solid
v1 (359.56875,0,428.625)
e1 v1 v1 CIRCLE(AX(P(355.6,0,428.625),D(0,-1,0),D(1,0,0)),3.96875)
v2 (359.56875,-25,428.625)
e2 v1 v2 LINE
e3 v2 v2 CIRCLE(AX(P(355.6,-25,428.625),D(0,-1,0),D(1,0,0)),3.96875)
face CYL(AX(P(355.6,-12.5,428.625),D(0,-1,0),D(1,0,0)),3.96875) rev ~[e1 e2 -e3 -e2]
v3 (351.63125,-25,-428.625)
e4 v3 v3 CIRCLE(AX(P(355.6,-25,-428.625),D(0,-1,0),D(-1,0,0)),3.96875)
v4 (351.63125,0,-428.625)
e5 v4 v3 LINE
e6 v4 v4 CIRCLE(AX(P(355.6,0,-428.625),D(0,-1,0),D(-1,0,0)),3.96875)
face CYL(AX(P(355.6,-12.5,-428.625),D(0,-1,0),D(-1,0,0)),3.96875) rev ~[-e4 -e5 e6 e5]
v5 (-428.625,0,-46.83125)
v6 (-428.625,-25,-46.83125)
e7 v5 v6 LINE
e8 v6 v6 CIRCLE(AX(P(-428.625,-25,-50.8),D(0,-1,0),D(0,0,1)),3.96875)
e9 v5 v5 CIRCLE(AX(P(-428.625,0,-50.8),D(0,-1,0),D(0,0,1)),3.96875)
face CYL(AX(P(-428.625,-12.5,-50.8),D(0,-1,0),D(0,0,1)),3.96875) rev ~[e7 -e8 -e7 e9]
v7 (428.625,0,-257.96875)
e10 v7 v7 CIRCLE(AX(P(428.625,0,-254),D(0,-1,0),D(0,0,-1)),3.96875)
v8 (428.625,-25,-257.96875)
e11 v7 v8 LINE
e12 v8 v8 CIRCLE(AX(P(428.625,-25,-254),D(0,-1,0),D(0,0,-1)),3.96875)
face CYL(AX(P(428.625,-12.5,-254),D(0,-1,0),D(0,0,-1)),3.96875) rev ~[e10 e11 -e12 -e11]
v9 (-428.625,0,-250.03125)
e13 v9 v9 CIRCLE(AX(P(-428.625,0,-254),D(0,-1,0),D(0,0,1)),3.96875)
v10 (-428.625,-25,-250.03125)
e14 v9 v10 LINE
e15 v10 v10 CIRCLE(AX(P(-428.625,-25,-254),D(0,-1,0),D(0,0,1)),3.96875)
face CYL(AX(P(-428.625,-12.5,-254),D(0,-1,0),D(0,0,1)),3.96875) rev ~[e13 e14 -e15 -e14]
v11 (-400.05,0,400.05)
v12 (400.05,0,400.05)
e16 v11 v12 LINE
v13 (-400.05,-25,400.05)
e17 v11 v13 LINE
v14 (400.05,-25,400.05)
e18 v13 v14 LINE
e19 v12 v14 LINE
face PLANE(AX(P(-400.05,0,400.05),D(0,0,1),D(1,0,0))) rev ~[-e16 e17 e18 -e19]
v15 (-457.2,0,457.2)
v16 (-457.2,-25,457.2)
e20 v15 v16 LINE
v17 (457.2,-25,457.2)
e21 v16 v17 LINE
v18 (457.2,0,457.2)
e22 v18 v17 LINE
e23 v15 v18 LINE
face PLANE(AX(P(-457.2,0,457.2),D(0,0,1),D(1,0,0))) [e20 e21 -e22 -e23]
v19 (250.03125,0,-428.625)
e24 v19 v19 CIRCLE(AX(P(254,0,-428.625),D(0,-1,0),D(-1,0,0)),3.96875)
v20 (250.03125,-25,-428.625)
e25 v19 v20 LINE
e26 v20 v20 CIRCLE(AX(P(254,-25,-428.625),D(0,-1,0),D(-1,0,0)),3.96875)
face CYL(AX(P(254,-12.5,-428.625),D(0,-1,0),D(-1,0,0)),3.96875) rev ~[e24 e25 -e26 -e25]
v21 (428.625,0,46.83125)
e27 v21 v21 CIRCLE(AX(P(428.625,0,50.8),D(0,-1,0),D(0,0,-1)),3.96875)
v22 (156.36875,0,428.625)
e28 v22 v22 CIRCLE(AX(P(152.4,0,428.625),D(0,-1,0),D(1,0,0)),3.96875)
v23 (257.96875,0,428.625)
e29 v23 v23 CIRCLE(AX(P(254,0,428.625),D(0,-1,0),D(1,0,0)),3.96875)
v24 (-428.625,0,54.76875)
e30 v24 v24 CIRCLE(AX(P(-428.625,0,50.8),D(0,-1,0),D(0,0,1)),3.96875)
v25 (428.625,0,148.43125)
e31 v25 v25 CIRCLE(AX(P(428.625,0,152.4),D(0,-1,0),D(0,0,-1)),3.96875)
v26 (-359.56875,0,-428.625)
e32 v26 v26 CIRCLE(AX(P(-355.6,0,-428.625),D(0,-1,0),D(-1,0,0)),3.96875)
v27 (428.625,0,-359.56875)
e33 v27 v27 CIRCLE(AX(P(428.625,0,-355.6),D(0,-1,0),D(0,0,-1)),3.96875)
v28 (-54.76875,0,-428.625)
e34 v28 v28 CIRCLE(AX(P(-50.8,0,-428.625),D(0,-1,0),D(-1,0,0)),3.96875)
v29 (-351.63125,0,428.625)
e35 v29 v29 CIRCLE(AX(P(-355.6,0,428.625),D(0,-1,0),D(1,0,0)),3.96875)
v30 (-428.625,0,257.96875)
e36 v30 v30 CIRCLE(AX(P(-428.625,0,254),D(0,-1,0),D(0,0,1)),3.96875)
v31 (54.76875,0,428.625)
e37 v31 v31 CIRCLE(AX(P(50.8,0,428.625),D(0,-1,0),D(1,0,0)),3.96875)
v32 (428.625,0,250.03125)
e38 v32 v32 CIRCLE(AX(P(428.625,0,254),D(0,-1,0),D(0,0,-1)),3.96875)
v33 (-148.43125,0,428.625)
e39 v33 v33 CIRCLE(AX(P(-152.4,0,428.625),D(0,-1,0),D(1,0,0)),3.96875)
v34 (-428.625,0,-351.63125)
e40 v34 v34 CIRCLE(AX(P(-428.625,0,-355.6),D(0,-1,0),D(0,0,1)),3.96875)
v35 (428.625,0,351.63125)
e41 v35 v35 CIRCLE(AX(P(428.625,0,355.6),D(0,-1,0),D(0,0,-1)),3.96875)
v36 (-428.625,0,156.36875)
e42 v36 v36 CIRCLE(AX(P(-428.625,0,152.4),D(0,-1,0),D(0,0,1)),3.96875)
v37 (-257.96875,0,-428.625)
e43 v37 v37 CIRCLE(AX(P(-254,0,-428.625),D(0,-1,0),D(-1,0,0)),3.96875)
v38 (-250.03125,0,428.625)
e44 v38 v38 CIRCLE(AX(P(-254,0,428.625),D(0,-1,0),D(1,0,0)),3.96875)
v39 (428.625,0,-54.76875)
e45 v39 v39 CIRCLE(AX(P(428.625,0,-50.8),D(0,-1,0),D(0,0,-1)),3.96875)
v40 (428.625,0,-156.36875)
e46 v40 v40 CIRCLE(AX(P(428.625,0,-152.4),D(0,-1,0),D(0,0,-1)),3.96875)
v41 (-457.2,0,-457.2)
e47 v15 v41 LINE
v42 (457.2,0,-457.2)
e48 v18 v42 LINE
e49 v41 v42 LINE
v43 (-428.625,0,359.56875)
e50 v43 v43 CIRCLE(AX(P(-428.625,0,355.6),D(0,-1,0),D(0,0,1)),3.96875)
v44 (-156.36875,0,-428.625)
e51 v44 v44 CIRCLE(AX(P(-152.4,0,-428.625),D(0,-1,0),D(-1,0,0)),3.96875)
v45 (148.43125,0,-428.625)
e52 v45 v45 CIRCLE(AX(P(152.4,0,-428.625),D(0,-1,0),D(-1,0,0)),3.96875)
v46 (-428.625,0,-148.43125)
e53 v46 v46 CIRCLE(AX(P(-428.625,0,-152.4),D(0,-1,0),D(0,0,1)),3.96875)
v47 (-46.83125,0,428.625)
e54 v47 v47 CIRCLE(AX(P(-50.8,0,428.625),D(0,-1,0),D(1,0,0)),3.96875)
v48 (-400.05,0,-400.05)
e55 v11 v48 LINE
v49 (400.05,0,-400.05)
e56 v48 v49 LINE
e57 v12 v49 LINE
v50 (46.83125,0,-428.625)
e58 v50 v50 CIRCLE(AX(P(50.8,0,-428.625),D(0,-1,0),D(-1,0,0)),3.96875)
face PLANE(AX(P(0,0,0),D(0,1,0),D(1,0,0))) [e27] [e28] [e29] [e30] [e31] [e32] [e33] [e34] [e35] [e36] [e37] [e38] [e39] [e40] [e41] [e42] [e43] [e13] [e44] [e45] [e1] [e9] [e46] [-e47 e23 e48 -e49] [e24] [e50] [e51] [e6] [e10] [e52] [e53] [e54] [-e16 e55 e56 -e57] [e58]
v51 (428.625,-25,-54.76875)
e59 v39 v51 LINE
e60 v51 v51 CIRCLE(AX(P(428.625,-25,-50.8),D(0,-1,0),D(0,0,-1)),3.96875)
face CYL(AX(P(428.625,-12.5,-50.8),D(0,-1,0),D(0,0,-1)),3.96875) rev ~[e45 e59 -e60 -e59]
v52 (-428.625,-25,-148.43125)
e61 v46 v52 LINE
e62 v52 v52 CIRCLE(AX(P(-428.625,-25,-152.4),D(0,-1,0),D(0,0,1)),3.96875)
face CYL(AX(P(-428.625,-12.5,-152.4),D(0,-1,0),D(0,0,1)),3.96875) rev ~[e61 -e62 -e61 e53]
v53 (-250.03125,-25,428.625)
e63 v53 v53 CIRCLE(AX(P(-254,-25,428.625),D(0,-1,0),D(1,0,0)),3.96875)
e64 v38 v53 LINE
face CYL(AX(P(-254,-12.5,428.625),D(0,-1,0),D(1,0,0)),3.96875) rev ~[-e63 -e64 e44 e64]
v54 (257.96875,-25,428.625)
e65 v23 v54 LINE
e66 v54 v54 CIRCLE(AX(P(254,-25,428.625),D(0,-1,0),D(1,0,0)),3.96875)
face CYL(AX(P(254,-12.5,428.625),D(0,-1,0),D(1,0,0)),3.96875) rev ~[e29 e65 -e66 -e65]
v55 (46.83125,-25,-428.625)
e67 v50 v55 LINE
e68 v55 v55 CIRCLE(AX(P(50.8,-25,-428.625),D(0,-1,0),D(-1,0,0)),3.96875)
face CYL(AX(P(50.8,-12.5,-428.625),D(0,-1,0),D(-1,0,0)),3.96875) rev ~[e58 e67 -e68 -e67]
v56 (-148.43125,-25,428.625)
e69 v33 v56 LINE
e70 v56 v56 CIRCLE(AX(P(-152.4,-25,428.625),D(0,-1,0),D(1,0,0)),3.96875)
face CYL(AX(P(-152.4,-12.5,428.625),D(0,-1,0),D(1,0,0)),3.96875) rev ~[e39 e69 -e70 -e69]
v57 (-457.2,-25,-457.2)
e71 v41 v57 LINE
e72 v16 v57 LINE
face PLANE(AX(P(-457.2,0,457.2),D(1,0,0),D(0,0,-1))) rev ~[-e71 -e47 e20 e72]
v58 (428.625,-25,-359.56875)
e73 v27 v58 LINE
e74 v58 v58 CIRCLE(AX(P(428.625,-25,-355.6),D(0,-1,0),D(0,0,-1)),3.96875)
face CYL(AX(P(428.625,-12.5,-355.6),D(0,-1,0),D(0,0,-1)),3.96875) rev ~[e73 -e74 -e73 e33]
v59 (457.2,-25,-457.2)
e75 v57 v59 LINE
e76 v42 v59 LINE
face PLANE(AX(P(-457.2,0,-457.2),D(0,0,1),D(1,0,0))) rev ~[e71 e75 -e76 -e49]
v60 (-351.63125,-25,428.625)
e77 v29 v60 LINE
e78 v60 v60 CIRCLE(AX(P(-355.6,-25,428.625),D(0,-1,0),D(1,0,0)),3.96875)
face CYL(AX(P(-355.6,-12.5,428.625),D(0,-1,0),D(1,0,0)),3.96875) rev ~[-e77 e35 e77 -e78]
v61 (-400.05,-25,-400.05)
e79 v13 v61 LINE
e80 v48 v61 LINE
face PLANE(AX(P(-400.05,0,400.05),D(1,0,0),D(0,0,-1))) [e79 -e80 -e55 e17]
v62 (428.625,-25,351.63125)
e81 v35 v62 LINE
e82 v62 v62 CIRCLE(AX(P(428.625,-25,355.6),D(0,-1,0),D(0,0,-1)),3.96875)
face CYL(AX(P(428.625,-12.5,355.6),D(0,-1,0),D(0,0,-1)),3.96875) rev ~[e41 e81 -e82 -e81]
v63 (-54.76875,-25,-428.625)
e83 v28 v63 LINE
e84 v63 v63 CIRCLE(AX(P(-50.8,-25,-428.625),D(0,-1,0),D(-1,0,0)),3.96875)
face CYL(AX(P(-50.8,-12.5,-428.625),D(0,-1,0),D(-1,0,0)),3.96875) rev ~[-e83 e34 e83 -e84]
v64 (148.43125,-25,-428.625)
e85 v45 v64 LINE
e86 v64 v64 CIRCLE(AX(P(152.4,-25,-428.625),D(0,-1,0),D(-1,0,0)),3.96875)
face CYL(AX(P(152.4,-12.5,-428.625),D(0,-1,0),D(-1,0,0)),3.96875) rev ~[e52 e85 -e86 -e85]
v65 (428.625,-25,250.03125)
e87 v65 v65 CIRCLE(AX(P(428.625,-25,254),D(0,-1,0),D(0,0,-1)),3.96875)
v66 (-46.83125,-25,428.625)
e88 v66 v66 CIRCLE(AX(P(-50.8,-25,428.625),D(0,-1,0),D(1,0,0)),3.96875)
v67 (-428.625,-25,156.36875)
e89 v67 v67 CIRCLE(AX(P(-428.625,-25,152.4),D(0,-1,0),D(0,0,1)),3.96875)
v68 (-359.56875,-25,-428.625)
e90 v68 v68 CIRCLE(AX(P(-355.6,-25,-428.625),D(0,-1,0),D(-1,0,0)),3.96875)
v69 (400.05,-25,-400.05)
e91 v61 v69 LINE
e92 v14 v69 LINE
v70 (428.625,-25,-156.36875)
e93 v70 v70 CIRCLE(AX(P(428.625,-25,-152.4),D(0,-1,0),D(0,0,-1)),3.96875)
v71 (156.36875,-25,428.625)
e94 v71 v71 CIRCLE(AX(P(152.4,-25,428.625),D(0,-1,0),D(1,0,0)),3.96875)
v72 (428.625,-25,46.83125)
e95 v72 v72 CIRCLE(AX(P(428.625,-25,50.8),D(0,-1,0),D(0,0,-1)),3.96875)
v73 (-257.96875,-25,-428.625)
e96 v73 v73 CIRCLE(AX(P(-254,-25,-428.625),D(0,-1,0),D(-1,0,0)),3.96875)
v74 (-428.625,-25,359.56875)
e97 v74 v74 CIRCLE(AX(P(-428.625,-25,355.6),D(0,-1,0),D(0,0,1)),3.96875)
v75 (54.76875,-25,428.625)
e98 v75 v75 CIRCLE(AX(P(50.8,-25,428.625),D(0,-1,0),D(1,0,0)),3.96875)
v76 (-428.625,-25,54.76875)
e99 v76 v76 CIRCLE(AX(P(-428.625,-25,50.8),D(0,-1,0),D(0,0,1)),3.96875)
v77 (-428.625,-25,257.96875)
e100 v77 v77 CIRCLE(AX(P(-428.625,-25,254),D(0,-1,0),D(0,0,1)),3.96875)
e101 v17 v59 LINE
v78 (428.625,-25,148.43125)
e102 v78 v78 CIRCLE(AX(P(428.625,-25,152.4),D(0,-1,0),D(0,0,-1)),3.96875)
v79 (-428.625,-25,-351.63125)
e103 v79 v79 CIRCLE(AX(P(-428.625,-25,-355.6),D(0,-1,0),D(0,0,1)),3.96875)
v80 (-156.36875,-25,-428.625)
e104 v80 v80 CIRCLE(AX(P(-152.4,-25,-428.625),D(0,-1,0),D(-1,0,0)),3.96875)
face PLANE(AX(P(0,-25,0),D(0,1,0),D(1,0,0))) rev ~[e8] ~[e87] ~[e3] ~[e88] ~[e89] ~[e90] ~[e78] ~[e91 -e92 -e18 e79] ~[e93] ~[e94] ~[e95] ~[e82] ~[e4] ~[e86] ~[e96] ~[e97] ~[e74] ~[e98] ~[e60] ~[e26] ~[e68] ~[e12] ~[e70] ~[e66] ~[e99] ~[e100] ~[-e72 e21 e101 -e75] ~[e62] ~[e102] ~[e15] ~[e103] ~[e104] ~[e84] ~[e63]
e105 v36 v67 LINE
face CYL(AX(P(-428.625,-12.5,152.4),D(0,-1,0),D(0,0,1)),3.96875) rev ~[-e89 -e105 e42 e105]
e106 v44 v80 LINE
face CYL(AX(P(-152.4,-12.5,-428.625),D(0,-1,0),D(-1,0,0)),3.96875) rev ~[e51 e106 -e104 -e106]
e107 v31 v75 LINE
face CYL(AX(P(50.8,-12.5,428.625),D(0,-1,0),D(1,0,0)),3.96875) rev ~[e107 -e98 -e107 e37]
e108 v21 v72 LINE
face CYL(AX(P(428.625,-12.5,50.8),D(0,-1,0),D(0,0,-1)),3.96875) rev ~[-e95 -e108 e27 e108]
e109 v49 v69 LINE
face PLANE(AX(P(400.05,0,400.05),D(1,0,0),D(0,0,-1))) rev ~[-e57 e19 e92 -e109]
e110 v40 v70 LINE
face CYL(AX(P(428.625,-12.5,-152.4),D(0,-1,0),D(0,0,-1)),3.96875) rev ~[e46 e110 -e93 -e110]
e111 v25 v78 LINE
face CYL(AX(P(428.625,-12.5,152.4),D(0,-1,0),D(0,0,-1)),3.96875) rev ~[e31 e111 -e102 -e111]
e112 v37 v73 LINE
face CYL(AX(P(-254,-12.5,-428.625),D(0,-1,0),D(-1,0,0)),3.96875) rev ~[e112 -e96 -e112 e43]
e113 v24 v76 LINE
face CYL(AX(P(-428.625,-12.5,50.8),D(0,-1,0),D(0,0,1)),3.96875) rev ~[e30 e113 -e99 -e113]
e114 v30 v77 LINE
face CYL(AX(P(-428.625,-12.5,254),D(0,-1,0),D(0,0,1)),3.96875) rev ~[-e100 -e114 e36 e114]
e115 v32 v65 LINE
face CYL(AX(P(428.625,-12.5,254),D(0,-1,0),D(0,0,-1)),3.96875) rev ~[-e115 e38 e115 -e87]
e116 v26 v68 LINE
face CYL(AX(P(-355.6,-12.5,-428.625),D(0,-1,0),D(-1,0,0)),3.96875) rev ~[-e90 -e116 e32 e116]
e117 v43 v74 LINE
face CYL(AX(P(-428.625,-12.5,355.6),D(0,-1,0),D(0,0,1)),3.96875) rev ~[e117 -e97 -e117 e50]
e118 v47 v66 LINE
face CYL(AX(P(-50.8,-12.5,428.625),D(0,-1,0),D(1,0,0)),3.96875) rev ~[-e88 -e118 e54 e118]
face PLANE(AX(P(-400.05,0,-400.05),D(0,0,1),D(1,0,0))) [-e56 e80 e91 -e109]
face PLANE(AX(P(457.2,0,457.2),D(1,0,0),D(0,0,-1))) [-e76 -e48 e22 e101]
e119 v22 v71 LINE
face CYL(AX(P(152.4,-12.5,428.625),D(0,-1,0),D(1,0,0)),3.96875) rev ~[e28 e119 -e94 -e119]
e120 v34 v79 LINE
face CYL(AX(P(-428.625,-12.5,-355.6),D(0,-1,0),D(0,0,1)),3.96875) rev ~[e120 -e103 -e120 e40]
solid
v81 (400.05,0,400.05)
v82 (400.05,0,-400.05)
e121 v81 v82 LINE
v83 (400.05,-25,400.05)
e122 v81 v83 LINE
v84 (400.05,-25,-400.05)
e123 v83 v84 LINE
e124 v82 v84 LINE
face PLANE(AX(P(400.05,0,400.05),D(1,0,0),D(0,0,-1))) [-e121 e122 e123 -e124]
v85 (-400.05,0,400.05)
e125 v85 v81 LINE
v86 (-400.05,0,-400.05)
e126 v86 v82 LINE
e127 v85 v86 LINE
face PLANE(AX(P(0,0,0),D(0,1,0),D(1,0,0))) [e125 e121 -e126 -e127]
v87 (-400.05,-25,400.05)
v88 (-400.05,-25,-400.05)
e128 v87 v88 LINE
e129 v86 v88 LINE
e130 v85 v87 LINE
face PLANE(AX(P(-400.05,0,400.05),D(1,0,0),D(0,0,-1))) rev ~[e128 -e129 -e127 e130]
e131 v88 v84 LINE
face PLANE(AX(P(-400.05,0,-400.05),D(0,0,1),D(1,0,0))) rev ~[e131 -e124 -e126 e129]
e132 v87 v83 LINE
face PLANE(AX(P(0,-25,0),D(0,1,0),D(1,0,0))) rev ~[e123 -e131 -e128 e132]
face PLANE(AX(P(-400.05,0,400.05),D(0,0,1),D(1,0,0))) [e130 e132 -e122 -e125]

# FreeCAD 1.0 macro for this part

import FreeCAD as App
import Part
import Sketcher
Q = App.Units.Quantity


def add_polygon(sketch, points):
    """Adds a closed chain of lines whose ends are joined by coincident constraints."""
    first, n = sketch.GeometryCount, len(points)
    for a, b in zip(points, points[1:] + points[:1]):
        sketch.addGeometry(Part.LineSegment(App.Vector(*a, 0), App.Vector(*b, 0)), False)
    for i in range(n):
        sketch.addConstraint(Sketcher.Constraint("Coincident", first + i, 2, first + (i + 1) % n, 1))

doc = App.newDocument("Part")
body = doc.addObject("PartDesign::Body", "Body")

# Sketch on XZ plane
sketch1 = body.newObject("Sketcher::SketchObject", "Sketch")
sketch1.AttachmentSupport = (doc.getObject("XZ_Plane"), [""])
sketch1.MapMode = "FlatFace"
add_polygon(sketch1, [(-400.05, -400.05), (-400.05, 400.05), (400.05, 400.05), (400.05, -400.05)])  # lines 0-3
sketch1.addConstraint([
    Sketcher.Constraint("Vertical", 0),
    Sketcher.Constraint("Horizontal", 1),
    Sketcher.Constraint("Vertical", 2),
    Sketcher.Constraint("Horizontal", 3),
    Sketcher.Constraint("Symmetric", 0, 2, 2, 2, -1, 1),
    Sketcher.Constraint("Equal", 3, 0),
    Sketcher.Constraint("DistanceX", 1, 1, 1, 2, Q("31.5 in")),
])
pad1 = body.newObject("PartDesign::Pad", "Pad")
pad1.Profile = sketch1
pad1.Length = 25
body2 = doc.addObject("PartDesign::Body", "Body001")

# Sketch on XZ plane
sketch2 = body2.newObject("Sketcher::SketchObject", "Sketch001")
sketch2.AttachmentSupport = (doc.getObject("XZ_Plane001"), [""])
sketch2.MapMode = "FlatFace"
add_polygon(sketch2, [(-457.2, -457.2), (-457.2, 457.2), (457.2, 457.2), (457.2, -457.2)])  # lines 0-3
add_polygon(sketch2, [(400.05, 400.05), (-400.05, 400.05), (-400.05, -400.05), (400.05, -400.05)])  # lines 4-7
sketch2.addConstraint([
    Sketcher.Constraint("Vertical", 0),
    Sketcher.Constraint("Horizontal", 1),
    Sketcher.Constraint("Vertical", 2),
    Sketcher.Constraint("Horizontal", 3),
    Sketcher.Constraint("Horizontal", 4),
    Sketcher.Constraint("Vertical", 5),
    Sketcher.Constraint("Horizontal", 6),
    Sketcher.Constraint("Vertical", 7),
    Sketcher.Constraint("Symmetric", 0, 2, 2, 2, -1, 1),
    Sketcher.Constraint("Symmetric", 4, 2, 6, 2, -1, 1),
    Sketcher.Constraint("Equal", 3, 0),
    Sketcher.Constraint("Equal", 6, 5),
    Sketcher.Constraint("DistanceX", 1, 1, 1, 2, Q("36 in")),
    Sketcher.Constraint("DistanceX", 4, 2, 4, 1, Q("31.5 in")),
])
pad2 = body2.newObject("PartDesign::Pad", "Pad001")
pad2.Profile = sketch2
pad2.Length = 25

# Sketch on YZ plane
sketch3 = body2.newObject("Sketcher::SketchObject", "Sketch002")
sketch3.AttachmentSupport = (doc.getObject("YZ_Plane001"), [""])
sketch3.MapMode = "FlatFace"
sketch3.AttachmentOffset = App.Placement(App.Vector(0, 0, -16.875 * 25.4), App.Rotation())
add_polygon(sketch3, [(-25, 50.8), (0, 50.8), (0, 54.76875), (-25, 54.76875)])  # lines 0-3
sketch3.addGeometry(Part.LineSegment(App.Vector(0, 50.8, 0), App.Vector(-25, 50.8, 0)), True)  # axis
sketch3.addConstraint([
    Sketcher.Constraint("Horizontal", 0),
    Sketcher.Constraint("Vertical", 1),
    Sketcher.Constraint("Horizontal", 2),
    Sketcher.Constraint("Vertical", 3),
    Sketcher.Constraint("Horizontal", 4),
    Sketcher.Constraint("Coincident", 4, 1, 0, 2),
    Sketcher.Constraint("PointOnObject", 0, 2, -2),
    Sketcher.Constraint("Vertical", 2, 2, 4, 2),
    Sketcher.Constraint("DistanceY", -1, 1, 0, 2, Q("2 in")),
    Sketcher.Constraint("DistanceY", 1, 1, 1, 2, Q("0.15625 in")),
    Sketcher.Constraint("DistanceX", 0, 1, 0, 2, Q("25 mm")),
])
groove = body2.newObject("PartDesign::Groove", "Groove")
groove.Profile = sketch3
groove.ReferenceAxis = (sketch3, ["Axis0"])
groove.Angle = 360
doc.recompute()

linearpattern = body2.newObject("PartDesign::LinearPattern", "LinearPattern")
linearpattern.Originals = [groove]
linearpattern.Direction = (doc.getObject("Z_Axis001"), [""])
linearpattern.Mode = "offset"
linearpattern.Offset = Q("4 in")
linearpattern.Occurrences = 4
body2.Tip = linearpattern
doc.recompute()

linearpattern2 = body2.newObject("PartDesign::LinearPattern", "LinearPattern001")
linearpattern2.Originals = [groove]
linearpattern2.Direction = (doc.getObject("Z_Axis001"), [""])
linearpattern2.Mode = "offset"
linearpattern2.Offset = Q("4 in")
linearpattern2.Occurrences = 5
linearpattern2.Reversed = True
body2.Tip = linearpattern2
doc.recompute()

polarpattern = body2.newObject("PartDesign::PolarPattern", "PolarPattern")
polarpattern.Originals = [groove]
polarpattern.Axis = (doc.getObject("Y_Axis001"), [""])
polarpattern.Angle = 360
polarpattern.Occurrences = 4
body2.Tip = polarpattern

# Sketch on XY plane
sketch4 = body2.newObject("Sketcher::SketchObject", "Sketch003")
sketch4.AttachmentSupport = (doc.getObject("XY_Plane001"), [""])
sketch4.MapMode = "FlatFace"
sketch4.AttachmentOffset = App.Placement(App.Vector(0, 0, 16.875 * 25.4), App.Rotation())
add_polygon(sketch4, [(152.4, -25), (152.4, 0), (156.36875, 0), (156.36875, -25)])  # lines 0-3
sketch4.addGeometry(Part.LineSegment(App.Vector(152.4, 0, 0), App.Vector(152.4, -25, 0)), True)  # axis
sketch4.addConstraint([
    Sketcher.Constraint("Vertical", 0),
    Sketcher.Constraint("Horizontal", 1),
    Sketcher.Constraint("Vertical", 2),
    Sketcher.Constraint("Horizontal", 3),
    Sketcher.Constraint("Vertical", 4),
    Sketcher.Constraint("Coincident", 4, 1, 0, 2),
    Sketcher.Constraint("PointOnObject", 0, 2, -1),
    Sketcher.Constraint("Horizontal", 2, 2, 4, 2),
    Sketcher.Constraint("DistanceX", -1, 1, 0, 2, Q("6 in")),
    Sketcher.Constraint("DistanceX", 1, 1, 1, 2, Q("0.15625 in")),
    Sketcher.Constraint("DistanceY", 0, 1, 0, 2, Q("25 mm")),
])
groove2 = body2.newObject("PartDesign::Groove", "Groove001")
groove2.Profile = sketch4
groove2.ReferenceAxis = (sketch4, ["Axis0"])
groove2.Angle = 360

# Sketch on YZ plane
sketch5 = body2.newObject("Sketcher::SketchObject", "Sketch004")
sketch5.AttachmentSupport = (doc.getObject("YZ_Plane001"), [""])
sketch5.MapMode = "FlatFace"
sketch5.AttachmentOffset = App.Placement(App.Vector(0, 0, 16.875 * 25.4), App.Rotation())
add_polygon(sketch5, [(-25, -152.4), (0, -152.4), (0, -156.36875), (-25, -156.36875)])  # lines 0-3
sketch5.addGeometry(Part.LineSegment(App.Vector(0, -152.4, 0), App.Vector(-25, -152.4, 0)), True)  # axis
sketch5.addConstraint([
    Sketcher.Constraint("Horizontal", 0),
    Sketcher.Constraint("Vertical", 1),
    Sketcher.Constraint("Horizontal", 2),
    Sketcher.Constraint("Vertical", 3),
    Sketcher.Constraint("Horizontal", 4),
    Sketcher.Constraint("Coincident", 4, 1, 0, 2),
    Sketcher.Constraint("PointOnObject", 0, 2, -2),
    Sketcher.Constraint("Vertical", 2, 2, 4, 2),
    Sketcher.Constraint("DistanceY", 0, 2, -1, 1, Q("6 in")),
    Sketcher.Constraint("DistanceY", 1, 2, 1, 1, Q("0.15625 in")),
    Sketcher.Constraint("DistanceX", 0, 1, 0, 2, Q("25 mm")),
])
groove3 = body2.newObject("PartDesign::Groove", "Groove002")
groove3.Profile = sketch5
groove3.ReferenceAxis = (sketch5, ["Axis0"])
groove3.Angle = 360

# Sketch on XY plane
sketch6 = body2.newObject("Sketcher::SketchObject", "Sketch005")
sketch6.AttachmentSupport = (doc.getObject("XY_Plane001"), [""])
sketch6.MapMode = "FlatFace"
sketch6.AttachmentOffset = App.Placement(App.Vector(0, 0, -16.875 * 25.4), App.Rotation())
add_polygon(sketch6, [(-152.4, -25), (-152.4, 0), (-156.36875, 0), (-156.36875, -25)])  # lines 0-3
sketch6.addGeometry(Part.LineSegment(App.Vector(-152.4, 0, 0), App.Vector(-152.4, -25, 0)), True)  # axis
sketch6.addConstraint([
    Sketcher.Constraint("Vertical", 0),
    Sketcher.Constraint("Horizontal", 1),
    Sketcher.Constraint("Vertical", 2),
    Sketcher.Constraint("Horizontal", 3),
    Sketcher.Constraint("Vertical", 4),
    Sketcher.Constraint("Coincident", 4, 1, 0, 2),
    Sketcher.Constraint("PointOnObject", 0, 2, -1),
    Sketcher.Constraint("Horizontal", 2, 2, 4, 2),
    Sketcher.Constraint("DistanceX", 0, 2, -1, 1, Q("6 in")),
    Sketcher.Constraint("DistanceX", 1, 2, 1, 1, Q("0.15625 in")),
    Sketcher.Constraint("DistanceY", 0, 1, 0, 2, Q("25 mm")),
])
groove4 = body2.newObject("PartDesign::Groove", "Groove003")
groove4.Profile = sketch6
groove4.ReferenceAxis = (sketch6, ["Axis0"])
groove4.Angle = 360

# Sketch on XY plane
sketch7 = body2.newObject("Sketcher::SketchObject", "Sketch006")
sketch7.AttachmentSupport = (doc.getObject("XY_Plane001"), [""])
sketch7.MapMode = "FlatFace"
sketch7.AttachmentOffset = App.Placement(App.Vector(0, 0, 16.875 * 25.4), App.Rotation())
add_polygon(sketch7, [(254, -25), (254, 0), (257.96875, 0), (257.96875, -25)])  # lines 0-3
sketch7.addGeometry(Part.LineSegment(App.Vector(254, 0, 0), App.Vector(254, -25, 0)), True)  # axis
sketch7.addConstraint([
    Sketcher.Constraint("Vertical", 0),
    Sketcher.Constraint("Horizontal", 1),
    Sketcher.Constraint("Vertical", 2),
    Sketcher.Constraint("Horizontal", 3),
    Sketcher.Constraint("Vertical", 4),
    Sketcher.Constraint("Coincident", 4, 1, 0, 2),
    Sketcher.Constraint("PointOnObject", 0, 2, -1),
    Sketcher.Constraint("Horizontal", 2, 2, 4, 2),
    Sketcher.Constraint("DistanceX", -1, 1, 0, 2, Q("10 in")),
    Sketcher.Constraint("DistanceX", 1, 1, 1, 2, Q("0.15625 in")),
    Sketcher.Constraint("DistanceY", 0, 1, 0, 2, Q("25 mm")),
])
groove5 = body2.newObject("PartDesign::Groove", "Groove004")
groove5.Profile = sketch7
groove5.ReferenceAxis = (sketch7, ["Axis0"])
groove5.Angle = 360

# Sketch on YZ plane
sketch8 = body2.newObject("Sketcher::SketchObject", "Sketch007")
sketch8.AttachmentSupport = (doc.getObject("YZ_Plane001"), [""])
sketch8.MapMode = "FlatFace"
sketch8.AttachmentOffset = App.Placement(App.Vector(0, 0, 16.875 * 25.4), App.Rotation())
add_polygon(sketch8, [(-25, -254), (0, -254), (0, -257.96875), (-25, -257.96875)])  # lines 0-3
sketch8.addGeometry(Part.LineSegment(App.Vector(0, -254, 0), App.Vector(-25, -254, 0)), True)  # axis
sketch8.addConstraint([
    Sketcher.Constraint("Horizontal", 0),
    Sketcher.Constraint("Vertical", 1),
    Sketcher.Constraint("Horizontal", 2),
    Sketcher.Constraint("Vertical", 3),
    Sketcher.Constraint("Horizontal", 4),
    Sketcher.Constraint("Coincident", 4, 1, 0, 2),
    Sketcher.Constraint("PointOnObject", 0, 2, -2),
    Sketcher.Constraint("Vertical", 2, 2, 4, 2),
    Sketcher.Constraint("DistanceY", 0, 2, -1, 1, Q("10 in")),
    Sketcher.Constraint("DistanceY", 1, 2, 1, 1, Q("0.15625 in")),
    Sketcher.Constraint("DistanceX", 0, 1, 0, 2, Q("25 mm")),
])
groove6 = body2.newObject("PartDesign::Groove", "Groove005")
groove6.Profile = sketch8
groove6.ReferenceAxis = (sketch8, ["Axis0"])
groove6.Angle = 360

# Sketch on XY plane
sketch9 = body2.newObject("Sketcher::SketchObject", "Sketch008")
sketch9.AttachmentSupport = (doc.getObject("XY_Plane001"), [""])
sketch9.MapMode = "FlatFace"
sketch9.AttachmentOffset = App.Placement(App.Vector(0, 0, -16.875 * 25.4), App.Rotation())
add_polygon(sketch9, [(-254, -25), (-254, 0), (-257.96875, 0), (-257.96875, -25)])  # lines 0-3
sketch9.addGeometry(Part.LineSegment(App.Vector(-254, 0, 0), App.Vector(-254, -25, 0)), True)  # axis
sketch9.addConstraint([
    Sketcher.Constraint("Vertical", 0),
    Sketcher.Constraint("Horizontal", 1),
    Sketcher.Constraint("Vertical", 2),
    Sketcher.Constraint("Horizontal", 3),
    Sketcher.Constraint("Vertical", 4),
    Sketcher.Constraint("Coincident", 4, 1, 0, 2),
    Sketcher.Constraint("PointOnObject", 0, 2, -1),
    Sketcher.Constraint("Horizontal", 2, 2, 4, 2),
    Sketcher.Constraint("DistanceX", 0, 2, -1, 1, Q("10 in")),
    Sketcher.Constraint("DistanceX", 1, 2, 1, 1, Q("0.15625 in")),
    Sketcher.Constraint("DistanceY", 0, 1, 0, 2, Q("25 mm")),
])
groove7 = body2.newObject("PartDesign::Groove", "Groove006")
groove7.Profile = sketch9
groove7.ReferenceAxis = (sketch9, ["Axis0"])
groove7.Angle = 360

# Sketch on XY plane
sketch10 = body2.newObject("Sketcher::SketchObject", "Sketch009")
sketch10.AttachmentSupport = (doc.getObject("XY_Plane001"), [""])
sketch10.MapMode = "FlatFace"
sketch10.AttachmentOffset = App.Placement(App.Vector(0, 0, 16.875 * 25.4), App.Rotation())
add_polygon(sketch10, [(355.6, -25), (355.6, 0), (359.56875, 0), (359.56875, -25)])  # lines 0-3
sketch10.addGeometry(Part.LineSegment(App.Vector(355.6, 0, 0), App.Vector(355.6, -25, 0)), True)  # axis
sketch10.addConstraint([
    Sketcher.Constraint("Vertical", 0),
    Sketcher.Constraint("Horizontal", 1),
    Sketcher.Constraint("Vertical", 2),
    Sketcher.Constraint("Horizontal", 3),
    Sketcher.Constraint("Vertical", 4),
    Sketcher.Constraint("Coincident", 4, 1, 0, 2),
    Sketcher.Constraint("PointOnObject", 0, 2, -1),
    Sketcher.Constraint("Horizontal", 2, 2, 4, 2),
    Sketcher.Constraint("DistanceX", -1, 1, 0, 2, Q("14 in")),
    Sketcher.Constraint("DistanceX", 1, 1, 1, 2, Q("0.15625 in")),
    Sketcher.Constraint("DistanceY", 0, 1, 0, 2, Q("25 mm")),
])
groove8 = body2.newObject("PartDesign::Groove", "Groove007")
groove8.Profile = sketch10
groove8.ReferenceAxis = (sketch10, ["Axis0"])
groove8.Angle = 360

# Sketch on YZ plane
sketch11 = body2.newObject("Sketcher::SketchObject", "Sketch010")
sketch11.AttachmentSupport = (doc.getObject("YZ_Plane001"), [""])
sketch11.MapMode = "FlatFace"
sketch11.AttachmentOffset = App.Placement(App.Vector(0, 0, 16.875 * 25.4), App.Rotation())
add_polygon(sketch11, [(-25, -355.6), (0, -355.6), (0, -359.56875), (-25, -359.56875)])  # lines 0-3
sketch11.addGeometry(Part.LineSegment(App.Vector(0, -355.6, 0), App.Vector(-25, -355.6, 0)), True)  # axis
sketch11.addConstraint([
    Sketcher.Constraint("Horizontal", 0),
    Sketcher.Constraint("Vertical", 1),
    Sketcher.Constraint("Horizontal", 2),
    Sketcher.Constraint("Vertical", 3),
    Sketcher.Constraint("Horizontal", 4),
    Sketcher.Constraint("Coincident", 4, 1, 0, 2),
    Sketcher.Constraint("PointOnObject", 0, 2, -2),
    Sketcher.Constraint("Vertical", 2, 2, 4, 2),
    Sketcher.Constraint("DistanceY", 0, 2, -1, 1, Q("14 in")),
    Sketcher.Constraint("DistanceY", 1, 2, 1, 1, Q("0.15625 in")),
    Sketcher.Constraint("DistanceX", 0, 1, 0, 2, Q("25 mm")),
])
groove9 = body2.newObject("PartDesign::Groove", "Groove008")
groove9.Profile = sketch11
groove9.ReferenceAxis = (sketch11, ["Axis0"])
groove9.Angle = 360

# Sketch on XY plane
sketch12 = body2.newObject("Sketcher::SketchObject", "Sketch011")
sketch12.AttachmentSupport = (doc.getObject("XY_Plane001"), [""])
sketch12.MapMode = "FlatFace"
sketch12.AttachmentOffset = App.Placement(App.Vector(0, 0, -16.875 * 25.4), App.Rotation())
add_polygon(sketch12, [(-355.6, -25), (-355.6, 0), (-359.56875, 0), (-359.56875, -25)])  # lines 0-3
sketch12.addGeometry(Part.LineSegment(App.Vector(-355.6, 0, 0), App.Vector(-355.6, -25, 0)), True)  # axis
sketch12.addConstraint([
    Sketcher.Constraint("Vertical", 0),
    Sketcher.Constraint("Horizontal", 1),
    Sketcher.Constraint("Vertical", 2),
    Sketcher.Constraint("Horizontal", 3),
    Sketcher.Constraint("Vertical", 4),
    Sketcher.Constraint("Coincident", 4, 1, 0, 2),
    Sketcher.Constraint("PointOnObject", 0, 2, -1),
    Sketcher.Constraint("Horizontal", 2, 2, 4, 2),
    Sketcher.Constraint("DistanceX", 0, 2, -1, 1, Q("14 in")),
    Sketcher.Constraint("DistanceX", 1, 2, 1, 1, Q("0.15625 in")),
    Sketcher.Constraint("DistanceY", 0, 1, 0, 2, Q("25 mm")),
])
groove10 = body2.newObject("PartDesign::Groove", "Groove009")
groove10.Profile = sketch12
groove10.ReferenceAxis = (sketch12, ["Axis0"])
groove10.Angle = 360

# Sketch on XY plane
sketch13 = body2.newObject("Sketcher::SketchObject", "Sketch012")
sketch13.AttachmentSupport = (doc.getObject("XY_Plane001"), [""])
sketch13.MapMode = "FlatFace"
sketch13.AttachmentOffset = App.Placement(App.Vector(0, 0, 16.875 * 25.4), App.Rotation())
add_polygon(sketch13, [(-50.8, -25), (-50.8, 0), (-46.83125, 0), (-46.83125, -25)])  # lines 0-3
sketch13.addGeometry(Part.LineSegment(App.Vector(-50.8, 0, 0), App.Vector(-50.8, -25, 0)), True)  # axis
sketch13.addConstraint([
    Sketcher.Constraint("Vertical", 0),
    Sketcher.Constraint("Horizontal", 1),
    Sketcher.Constraint("Vertical", 2),
    Sketcher.Constraint("Horizontal", 3),
    Sketcher.Constraint("Vertical", 4),
    Sketcher.Constraint("Coincident", 4, 1, 0, 2),
    Sketcher.Constraint("PointOnObject", 0, 2, -1),
    Sketcher.Constraint("Horizontal", 2, 2, 4, 2),
    Sketcher.Constraint("DistanceX", 0, 2, -1, 1, Q("2 in")),
    Sketcher.Constraint("DistanceX", 1, 1, 1, 2, Q("0.15625 in")),
    Sketcher.Constraint("DistanceY", 0, 1, 0, 2, Q("25 mm")),
])
groove11 = body2.newObject("PartDesign::Groove", "Groove010")
groove11.Profile = sketch13
groove11.ReferenceAxis = (sketch13, ["Axis0"])
groove11.Angle = 360

# Sketch on YZ plane
sketch14 = body2.newObject("Sketcher::SketchObject", "Sketch013")
sketch14.AttachmentSupport = (doc.getObject("YZ_Plane001"), [""])
sketch14.MapMode = "FlatFace"
sketch14.AttachmentOffset = App.Placement(App.Vector(0, 0, 16.875 * 25.4), App.Rotation())
add_polygon(sketch14, [(-25, 50.8), (0, 50.8), (0, 46.83125), (-25, 46.83125)])  # lines 0-3
sketch14.addGeometry(Part.LineSegment(App.Vector(0, 50.8, 0), App.Vector(-25, 50.8, 0)), True)  # axis
sketch14.addConstraint([
    Sketcher.Constraint("Horizontal", 0),
    Sketcher.Constraint("Vertical", 1),
    Sketcher.Constraint("Horizontal", 2),
    Sketcher.Constraint("Vertical", 3),
    Sketcher.Constraint("Horizontal", 4),
    Sketcher.Constraint("Coincident", 4, 1, 0, 2),
    Sketcher.Constraint("PointOnObject", 0, 2, -2),
    Sketcher.Constraint("Vertical", 2, 2, 4, 2),
    Sketcher.Constraint("DistanceY", -1, 1, 0, 2, Q("2 in")),
    Sketcher.Constraint("DistanceY", 1, 2, 1, 1, Q("0.15625 in")),
    Sketcher.Constraint("DistanceX", 0, 1, 0, 2, Q("25 mm")),
])
groove12 = body2.newObject("PartDesign::Groove", "Groove011")
groove12.Profile = sketch14
groove12.ReferenceAxis = (sketch14, ["Axis0"])
groove12.Angle = 360

# Sketch on XY plane
sketch15 = body2.newObject("Sketcher::SketchObject", "Sketch014")
sketch15.AttachmentSupport = (doc.getObject("XY_Plane001"), [""])
sketch15.MapMode = "FlatFace"
sketch15.AttachmentOffset = App.Placement(App.Vector(0, 0, -16.875 * 25.4), App.Rotation())
add_polygon(sketch15, [(50.8, -25), (50.8, 0), (46.83125, 0), (46.83125, -25)])  # lines 0-3
sketch15.addGeometry(Part.LineSegment(App.Vector(50.8, 0, 0), App.Vector(50.8, -25, 0)), True)  # axis
sketch15.addConstraint([
    Sketcher.Constraint("Vertical", 0),
    Sketcher.Constraint("Horizontal", 1),
    Sketcher.Constraint("Vertical", 2),
    Sketcher.Constraint("Horizontal", 3),
    Sketcher.Constraint("Vertical", 4),
    Sketcher.Constraint("Coincident", 4, 1, 0, 2),
    Sketcher.Constraint("PointOnObject", 0, 2, -1),
    Sketcher.Constraint("Horizontal", 2, 2, 4, 2),
    Sketcher.Constraint("DistanceX", -1, 1, 0, 2, Q("2 in")),
    Sketcher.Constraint("DistanceX", 1, 2, 1, 1, Q("0.15625 in")),
    Sketcher.Constraint("DistanceY", 0, 1, 0, 2, Q("25 mm")),
])
groove13 = body2.newObject("PartDesign::Groove", "Groove012")
groove13.Profile = sketch15
groove13.ReferenceAxis = (sketch15, ["Axis0"])
groove13.Angle = 360

# Sketch on XY plane
sketch16 = body2.newObject("Sketcher::SketchObject", "Sketch015")
sketch16.AttachmentSupport = (doc.getObject("XY_Plane001"), [""])
sketch16.MapMode = "FlatFace"
sketch16.AttachmentOffset = App.Placement(App.Vector(0, 0, 16.875 * 25.4), App.Rotation())
add_polygon(sketch16, [(-152.4, -25), (-152.4, 0), (-148.43125, 0), (-148.43125, -25)])  # lines 0-3
sketch16.addGeometry(Part.LineSegment(App.Vector(-152.4, 0, 0), App.Vector(-152.4, -25, 0)), True)  # axis
sketch16.addConstraint([
    Sketcher.Constraint("Vertical", 0),
    Sketcher.Constraint("Horizontal", 1),
    Sketcher.Constraint("Vertical", 2),
    Sketcher.Constraint("Horizontal", 3),
    Sketcher.Constraint("Vertical", 4),
    Sketcher.Constraint("Coincident", 4, 1, 0, 2),
    Sketcher.Constraint("PointOnObject", 0, 2, -1),
    Sketcher.Constraint("Horizontal", 2, 2, 4, 2),
    Sketcher.Constraint("DistanceX", 0, 2, -1, 1, Q("6 in")),
    Sketcher.Constraint("DistanceX", 1, 1, 1, 2, Q("0.15625 in")),
    Sketcher.Constraint("DistanceY", 0, 1, 0, 2, Q("25 mm")),
])
groove14 = body2.newObject("PartDesign::Groove", "Groove013")
groove14.Profile = sketch16
groove14.ReferenceAxis = (sketch16, ["Axis0"])
groove14.Angle = 360

# Sketch on YZ plane
sketch17 = body2.newObject("Sketcher::SketchObject", "Sketch016")
sketch17.AttachmentSupport = (doc.getObject("YZ_Plane001"), [""])
sketch17.MapMode = "FlatFace"
sketch17.AttachmentOffset = App.Placement(App.Vector(0, 0, 16.875 * 25.4), App.Rotation())
add_polygon(sketch17, [(-25, 152.4), (0, 152.4), (0, 148.43125), (-25, 148.43125)])  # lines 0-3
sketch17.addGeometry(Part.LineSegment(App.Vector(0, 152.4, 0), App.Vector(-25, 152.4, 0)), True)  # axis
sketch17.addConstraint([
    Sketcher.Constraint("Horizontal", 0),
    Sketcher.Constraint("Vertical", 1),
    Sketcher.Constraint("Horizontal", 2),
    Sketcher.Constraint("Vertical", 3),
    Sketcher.Constraint("Horizontal", 4),
    Sketcher.Constraint("Coincident", 4, 1, 0, 2),
    Sketcher.Constraint("PointOnObject", 0, 2, -2),
    Sketcher.Constraint("Vertical", 2, 2, 4, 2),
    Sketcher.Constraint("DistanceY", -1, 1, 0, 2, Q("6 in")),
    Sketcher.Constraint("DistanceY", 1, 2, 1, 1, Q("0.15625 in")),
    Sketcher.Constraint("DistanceX", 0, 1, 0, 2, Q("25 mm")),
])
groove15 = body2.newObject("PartDesign::Groove", "Groove014")
groove15.Profile = sketch17
groove15.ReferenceAxis = (sketch17, ["Axis0"])
groove15.Angle = 360

# Sketch on XY plane
sketch18 = body2.newObject("Sketcher::SketchObject", "Sketch017")
sketch18.AttachmentSupport = (doc.getObject("XY_Plane001"), [""])
sketch18.MapMode = "FlatFace"
sketch18.AttachmentOffset = App.Placement(App.Vector(0, 0, -16.875 * 25.4), App.Rotation())
add_polygon(sketch18, [(152.4, -25), (152.4, 0), (148.43125, 0), (148.43125, -25)])  # lines 0-3
sketch18.addGeometry(Part.LineSegment(App.Vector(152.4, 0, 0), App.Vector(152.4, -25, 0)), True)  # axis
sketch18.addConstraint([
    Sketcher.Constraint("Vertical", 0),
    Sketcher.Constraint("Horizontal", 1),
    Sketcher.Constraint("Vertical", 2),
    Sketcher.Constraint("Horizontal", 3),
    Sketcher.Constraint("Vertical", 4),
    Sketcher.Constraint("Coincident", 4, 1, 0, 2),
    Sketcher.Constraint("PointOnObject", 0, 2, -1),
    Sketcher.Constraint("Horizontal", 2, 2, 4, 2),
    Sketcher.Constraint("DistanceX", -1, 1, 0, 2, Q("6 in")),
    Sketcher.Constraint("DistanceX", 1, 2, 1, 1, Q("0.15625 in")),
    Sketcher.Constraint("DistanceY", 0, 1, 0, 2, Q("25 mm")),
])
groove16 = body2.newObject("PartDesign::Groove", "Groove015")
groove16.Profile = sketch18
groove16.ReferenceAxis = (sketch18, ["Axis0"])
groove16.Angle = 360

# Sketch on XY plane
sketch19 = body2.newObject("Sketcher::SketchObject", "Sketch018")
sketch19.AttachmentSupport = (doc.getObject("XY_Plane001"), [""])
sketch19.MapMode = "FlatFace"
sketch19.AttachmentOffset = App.Placement(App.Vector(0, 0, 16.875 * 25.4), App.Rotation())
add_polygon(sketch19, [(-254, -25), (-254, 0), (-250.03125, 0), (-250.03125, -25)])  # lines 0-3
sketch19.addGeometry(Part.LineSegment(App.Vector(-254, 0, 0), App.Vector(-254, -25, 0)), True)  # axis
sketch19.addConstraint([
    Sketcher.Constraint("Vertical", 0),
    Sketcher.Constraint("Horizontal", 1),
    Sketcher.Constraint("Vertical", 2),
    Sketcher.Constraint("Horizontal", 3),
    Sketcher.Constraint("Vertical", 4),
    Sketcher.Constraint("Coincident", 4, 1, 0, 2),
    Sketcher.Constraint("PointOnObject", 0, 2, -1),
    Sketcher.Constraint("Horizontal", 2, 2, 4, 2),
    Sketcher.Constraint("DistanceX", 0, 2, -1, 1, Q("10 in")),
    Sketcher.Constraint("DistanceX", 1, 1, 1, 2, Q("0.15625 in")),
    Sketcher.Constraint("DistanceY", 0, 1, 0, 2, Q("25 mm")),
])
groove17 = body2.newObject("PartDesign::Groove", "Groove016")
groove17.Profile = sketch19
groove17.ReferenceAxis = (sketch19, ["Axis0"])
groove17.Angle = 360

# Sketch on YZ plane
sketch20 = body2.newObject("Sketcher::SketchObject", "Sketch019")
sketch20.AttachmentSupport = (doc.getObject("YZ_Plane001"), [""])
sketch20.MapMode = "FlatFace"
sketch20.AttachmentOffset = App.Placement(App.Vector(0, 0, 16.875 * 25.4), App.Rotation())
add_polygon(sketch20, [(-25, 254), (0, 254), (0, 250.03125), (-25, 250.03125)])  # lines 0-3
sketch20.addGeometry(Part.LineSegment(App.Vector(0, 254, 0), App.Vector(-25, 254, 0)), True)  # axis
sketch20.addConstraint([
    Sketcher.Constraint("Horizontal", 0),
    Sketcher.Constraint("Vertical", 1),
    Sketcher.Constraint("Horizontal", 2),
    Sketcher.Constraint("Vertical", 3),
    Sketcher.Constraint("Horizontal", 4),
    Sketcher.Constraint("Coincident", 4, 1, 0, 2),
    Sketcher.Constraint("PointOnObject", 0, 2, -2),
    Sketcher.Constraint("Vertical", 2, 2, 4, 2),
    Sketcher.Constraint("DistanceY", -1, 1, 0, 2, Q("10 in")),
    Sketcher.Constraint("DistanceY", 1, 2, 1, 1, Q("0.15625 in")),
    Sketcher.Constraint("DistanceX", 0, 1, 0, 2, Q("25 mm")),
])
groove18 = body2.newObject("PartDesign::Groove", "Groove017")
groove18.Profile = sketch20
groove18.ReferenceAxis = (sketch20, ["Axis0"])
groove18.Angle = 360

# Sketch on XY plane
sketch21 = body2.newObject("Sketcher::SketchObject", "Sketch020")
sketch21.AttachmentSupport = (doc.getObject("XY_Plane001"), [""])
sketch21.MapMode = "FlatFace"
sketch21.AttachmentOffset = App.Placement(App.Vector(0, 0, -16.875 * 25.4), App.Rotation())
add_polygon(sketch21, [(254, -25), (254, 0), (250.03125, 0), (250.03125, -25)])  # lines 0-3
sketch21.addGeometry(Part.LineSegment(App.Vector(254, 0, 0), App.Vector(254, -25, 0)), True)  # axis
sketch21.addConstraint([
    Sketcher.Constraint("Vertical", 0),
    Sketcher.Constraint("Horizontal", 1),
    Sketcher.Constraint("Vertical", 2),
    Sketcher.Constraint("Horizontal", 3),
    Sketcher.Constraint("Vertical", 4),
    Sketcher.Constraint("Coincident", 4, 1, 0, 2),
    Sketcher.Constraint("PointOnObject", 0, 2, -1),
    Sketcher.Constraint("Horizontal", 2, 2, 4, 2),
    Sketcher.Constraint("DistanceX", -1, 1, 0, 2, Q("10 in")),
    Sketcher.Constraint("DistanceX", 1, 2, 1, 1, Q("0.15625 in")),
    Sketcher.Constraint("DistanceY", 0, 1, 0, 2, Q("25 mm")),
])
groove19 = body2.newObject("PartDesign::Groove", "Groove018")
groove19.Profile = sketch21
groove19.ReferenceAxis = (sketch21, ["Axis0"])
groove19.Angle = 360

# Sketch on XY plane
sketch22 = body2.newObject("Sketcher::SketchObject", "Sketch021")
sketch22.AttachmentSupport = (doc.getObject("XY_Plane001"), [""])
sketch22.MapMode = "FlatFace"
sketch22.AttachmentOffset = App.Placement(App.Vector(0, 0, 16.875 * 25.4), App.Rotation())
add_polygon(sketch22, [(-355.6, -25), (-355.6, 0), (-351.63125, 0), (-351.63125, -25)])  # lines 0-3
sketch22.addGeometry(Part.LineSegment(App.Vector(-355.6, 0, 0), App.Vector(-355.6, -25, 0)), True)  # axis
sketch22.addConstraint([
    Sketcher.Constraint("Vertical", 0),
    Sketcher.Constraint("Horizontal", 1),
    Sketcher.Constraint("Vertical", 2),
    Sketcher.Constraint("Horizontal", 3),
    Sketcher.Constraint("Vertical", 4),
    Sketcher.Constraint("Coincident", 4, 1, 0, 2),
    Sketcher.Constraint("PointOnObject", 0, 2, -1),
    Sketcher.Constraint("Horizontal", 2, 2, 4, 2),
    Sketcher.Constraint("DistanceX", 0, 2, -1, 1, Q("14 in")),
    Sketcher.Constraint("DistanceX", 1, 1, 1, 2, Q("0.15625 in")),
    Sketcher.Constraint("DistanceY", 0, 1, 0, 2, Q("25 mm")),
])
groove20 = body2.newObject("PartDesign::Groove", "Groove019")
groove20.Profile = sketch22
groove20.ReferenceAxis = (sketch22, ["Axis0"])
groove20.Angle = 360

# Sketch on YZ plane
sketch23 = body2.newObject("Sketcher::SketchObject", "Sketch022")
sketch23.AttachmentSupport = (doc.getObject("YZ_Plane001"), [""])
sketch23.MapMode = "FlatFace"
sketch23.AttachmentOffset = App.Placement(App.Vector(0, 0, 16.875 * 25.4), App.Rotation())
add_polygon(sketch23, [(-25, 355.6), (0, 355.6), (0, 351.63125), (-25, 351.63125)])  # lines 0-3
sketch23.addGeometry(Part.LineSegment(App.Vector(0, 355.6, 0), App.Vector(-25, 355.6, 0)), True)  # axis
sketch23.addConstraint([
    Sketcher.Constraint("Horizontal", 0),
    Sketcher.Constraint("Vertical", 1),
    Sketcher.Constraint("Horizontal", 2),
    Sketcher.Constraint("Vertical", 3),
    Sketcher.Constraint("Horizontal", 4),
    Sketcher.Constraint("Coincident", 4, 1, 0, 2),
    Sketcher.Constraint("PointOnObject", 0, 2, -2),
    Sketcher.Constraint("Vertical", 2, 2, 4, 2),
    Sketcher.Constraint("DistanceY", -1, 1, 0, 2, Q("14 in")),
    Sketcher.Constraint("DistanceY", 1, 2, 1, 1, Q("0.15625 in")),
    Sketcher.Constraint("DistanceX", 0, 1, 0, 2, Q("25 mm")),
])
groove21 = body2.newObject("PartDesign::Groove", "Groove020")
groove21.Profile = sketch23
groove21.ReferenceAxis = (sketch23, ["Axis0"])
groove21.Angle = 360

# Sketch on XY plane
sketch24 = body2.newObject("Sketcher::SketchObject", "Sketch023")
sketch24.AttachmentSupport = (doc.getObject("XY_Plane001"), [""])
sketch24.MapMode = "FlatFace"
sketch24.AttachmentOffset = App.Placement(App.Vector(0, 0, -16.875 * 25.4), App.Rotation())
add_polygon(sketch24, [(355.6, -25), (355.6, 0), (351.63125, 0), (351.63125, -25)])  # lines 0-3
sketch24.addGeometry(Part.LineSegment(App.Vector(355.6, 0, 0), App.Vector(355.6, -25, 0)), True)  # axis
sketch24.addConstraint([
    Sketcher.Constraint("Vertical", 0),
    Sketcher.Constraint("Horizontal", 1),
    Sketcher.Constraint("Vertical", 2),
    Sketcher.Constraint("Horizontal", 3),
    Sketcher.Constraint("Vertical", 4),
    Sketcher.Constraint("Coincident", 4, 1, 0, 2),
    Sketcher.Constraint("PointOnObject", 0, 2, -1),
    Sketcher.Constraint("Horizontal", 2, 2, 4, 2),
    Sketcher.Constraint("DistanceX", -1, 1, 0, 2, Q("14 in")),
    Sketcher.Constraint("DistanceX", 1, 2, 1, 1, Q("0.15625 in")),
    Sketcher.Constraint("DistanceY", 0, 1, 0, 2, Q("25 mm")),
])
groove22 = body2.newObject("PartDesign::Groove", "Groove021")
groove22.Profile = sketch24
groove22.ReferenceAxis = (sketch24, ["Axis0"])
groove22.Angle = 360

doc.recompute()
